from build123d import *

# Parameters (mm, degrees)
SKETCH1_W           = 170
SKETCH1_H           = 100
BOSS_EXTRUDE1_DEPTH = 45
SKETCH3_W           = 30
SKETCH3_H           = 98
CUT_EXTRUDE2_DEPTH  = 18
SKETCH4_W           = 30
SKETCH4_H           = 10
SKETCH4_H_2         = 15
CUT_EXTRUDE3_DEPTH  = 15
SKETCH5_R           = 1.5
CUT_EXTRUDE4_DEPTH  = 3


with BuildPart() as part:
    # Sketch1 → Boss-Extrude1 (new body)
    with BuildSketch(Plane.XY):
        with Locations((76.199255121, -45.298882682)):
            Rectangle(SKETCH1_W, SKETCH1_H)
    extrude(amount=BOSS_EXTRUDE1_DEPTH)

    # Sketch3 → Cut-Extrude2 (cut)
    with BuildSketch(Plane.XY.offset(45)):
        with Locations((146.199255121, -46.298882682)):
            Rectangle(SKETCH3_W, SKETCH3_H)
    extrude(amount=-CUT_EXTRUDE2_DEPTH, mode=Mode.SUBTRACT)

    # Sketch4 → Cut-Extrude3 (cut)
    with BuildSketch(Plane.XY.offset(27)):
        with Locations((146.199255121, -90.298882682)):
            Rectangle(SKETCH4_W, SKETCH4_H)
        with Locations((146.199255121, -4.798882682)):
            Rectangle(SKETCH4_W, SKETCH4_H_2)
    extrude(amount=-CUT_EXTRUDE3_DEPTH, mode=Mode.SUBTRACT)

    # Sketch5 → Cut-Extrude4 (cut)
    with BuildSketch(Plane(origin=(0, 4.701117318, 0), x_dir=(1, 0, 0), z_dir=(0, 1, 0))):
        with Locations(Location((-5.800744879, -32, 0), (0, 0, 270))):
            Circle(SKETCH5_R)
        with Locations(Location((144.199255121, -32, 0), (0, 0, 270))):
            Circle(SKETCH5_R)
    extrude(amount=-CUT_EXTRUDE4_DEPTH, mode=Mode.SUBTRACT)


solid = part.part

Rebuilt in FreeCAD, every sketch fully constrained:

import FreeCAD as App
import Part
import Sketcher
Q = App.Units.Quantity

doc = App.newDocument("Part")
body = doc.addObject("PartDesign::Body", "Body")

# Sketch on XY plane
sketch1 = body.newObject("Sketcher::SketchObject", "Sketch")
sketch1.AttachmentSupport = (doc.getObject("XY_Plane"), [""])
sketch1.MapMode = "FlatFace"
sketch1.addGeometry([
    Part.LineSegment(App.Vector(-8.800745, 4.701117, 0), App.Vector(-8.800745, -95.298883, 0)),
    Part.LineSegment(App.Vector(-8.800745, -95.298883, 0), App.Vector(161.199255, -95.298883, 0)),
    Part.LineSegment(App.Vector(161.199255, -95.298883, 0), App.Vector(161.199255, 4.701117, 0)),
    Part.LineSegment(App.Vector(161.199255, 4.701117, 0), App.Vector(-8.800745, 4.701117, 0)),
], False)
sketch1.addConstraint([
    Sketcher.Constraint("Coincident", 0, 2, 1, 1),
    Sketcher.Constraint("Coincident", 1, 2, 2, 1),
    Sketcher.Constraint("Coincident", 2, 2, 3, 1),
    Sketcher.Constraint("Coincident", 3, 2, 0, 1),
    Sketcher.Constraint("Vertical", 0),
    Sketcher.Constraint("Horizontal", 1),
    Sketcher.Constraint("Vertical", 2),
    Sketcher.Constraint("Horizontal", 3),
    Sketcher.Constraint("DistanceX", 1, 1, 1, 2, Q("170 mm")),
    Sketcher.Constraint("DistanceY", 0, 2, 0, 1, Q("100 mm")),
    Sketcher.Constraint("DistanceX", 0, 2, -1, 1, Q("8.800745 mm")),
    Sketcher.Constraint("DistanceY", 0, 2, -1, 1, Q("95.298883 mm")),
])
pad1 = body.newObject("PartDesign::Pad", "Pad")
pad1.Profile = sketch1
pad1.Length = 45

# Sketch on XY plane
sketch2 = body.newObject("Sketcher::SketchObject", "Sketch001")
sketch2.AttachmentSupport = (doc.getObject("XY_Plane"), [""])
sketch2.MapMode = "FlatFace"
sketch2.AttachmentOffset = App.Placement(App.Vector(0, 0, 45), App.Rotation())
sketch2.addGeometry([
    Part.LineSegment(App.Vector(131.199255, 2.701117, 0), App.Vector(131.199255, -95.298883, 0)),
    Part.LineSegment(App.Vector(131.199255, -95.298883, 0), App.Vector(161.199255, -95.298883, 0)),
    Part.LineSegment(App.Vector(161.199255, -95.298883, 0), App.Vector(161.199255, 2.701117, 0)),
    Part.LineSegment(App.Vector(161.199255, 2.701117, 0), App.Vector(131.199255, 2.701117, 0)),
], False)
sketch2.addConstraint([
    Sketcher.Constraint("Coincident", 0, 2, 1, 1),
    Sketcher.Constraint("Coincident", 1, 2, 2, 1),
    Sketcher.Constraint("Coincident", 2, 2, 3, 1),
    Sketcher.Constraint("Coincident", 3, 2, 0, 1),
    Sketcher.Constraint("Vertical", 0),
    Sketcher.Constraint("Horizontal", 1),
    Sketcher.Constraint("Vertical", 2),
    Sketcher.Constraint("Horizontal", 3),
    Sketcher.Constraint("DistanceX", 1, 1, 1, 2, Q("30 mm")),
    Sketcher.Constraint("DistanceY", 0, 2, 0, 1, Q("98 mm")),
    Sketcher.Constraint("DistanceX", -1, 1, 0, 2, Q("131.199255 mm")),
    Sketcher.Constraint("DistanceY", 0, 2, -1, 1, Q("95.298883 mm")),
])
pocket1 = body.newObject("PartDesign::Pocket", "Pocket")
pocket1.Profile = sketch2
pocket1.Length = 18

# Sketch on XY plane
sketch3 = body.newObject("Sketcher::SketchObject", "Sketch002")
sketch3.AttachmentSupport = (doc.getObject("XY_Plane"), [""])
sketch3.MapMode = "FlatFace"
sketch3.AttachmentOffset = App.Placement(App.Vector(0, 0, 27), App.Rotation())
sketch3.addGeometry([
    Part.LineSegment(App.Vector(131.199255, -85.298883, 0), App.Vector(131.199255, -95.298883, 0)),  # 0
    Part.LineSegment(App.Vector(131.199255, -95.298883, 0), App.Vector(161.199255, -95.298883, 0)),  # 1
    Part.LineSegment(App.Vector(161.199255, -95.298883, 0), App.Vector(161.199255, -85.298883, 0)),  # 2
    Part.LineSegment(App.Vector(161.199255, -85.298883, 0), App.Vector(131.199255, -85.298883, 0)),  # 3
    Part.LineSegment(App.Vector(131.199255, 2.701117, 0), App.Vector(131.199255, -12.298883, 0)),  # 4
    Part.LineSegment(App.Vector(131.199255, -12.298883, 0), App.Vector(161.199255, -12.298883, 0)),  # 5
    Part.LineSegment(App.Vector(161.199255, -12.298883, 0), App.Vector(161.199255, 2.701117, 0)),  # 6
    Part.LineSegment(App.Vector(161.199255, 2.701117, 0), App.Vector(131.199255, 2.701117, 0)),  # 7
], False)
sketch3.addConstraint([
    Sketcher.Constraint("Coincident", 0, 2, 1, 1),
    Sketcher.Constraint("Coincident", 1, 2, 2, 1),
    Sketcher.Constraint("Coincident", 2, 2, 3, 1),
    Sketcher.Constraint("Coincident", 3, 2, 0, 1),
    Sketcher.Constraint("Coincident", 4, 2, 5, 1),
    Sketcher.Constraint("Coincident", 5, 2, 6, 1),
    Sketcher.Constraint("Coincident", 6, 2, 7, 1),
    Sketcher.Constraint("Coincident", 7, 2, 4, 1),
    Sketcher.Constraint("Vertical", 0),
    Sketcher.Constraint("Horizontal", 1),
    Sketcher.Constraint("Vertical", 2),
    Sketcher.Constraint("Horizontal", 3),
    Sketcher.Constraint("Vertical", 4),
    Sketcher.Constraint("Horizontal", 5),
    Sketcher.Constraint("Vertical", 6),
    Sketcher.Constraint("Horizontal", 7),
    Sketcher.Constraint("Vertical", 3, 2, 4, 2),
    Sketcher.Constraint("Vertical", 2, 2, 5, 2),
    Sketcher.Constraint("DistanceX", 1, 1, 1, 2, Q("30 mm")),
    Sketcher.Constraint("DistanceY", 0, 2, 0, 1, Q("10 mm")),
    Sketcher.Constraint("DistanceY", 4, 2, 4, 1, Q("15 mm")),
    Sketcher.Constraint("DistanceY", 3, 2, 4, 2, Q("73 mm")),
    Sketcher.Constraint("DistanceX", -1, 1, 0, 2, Q("131.199255 mm")),
    Sketcher.Constraint("DistanceY", 0, 2, -1, 1, Q("95.298883 mm")),
])
pocket2 = body.newObject("PartDesign::Pocket", "Pocket001")
pocket2.Profile = sketch3
pocket2.Length = 15

# Sketch on XZ plane
sketch4 = body.newObject("Sketcher::SketchObject", "Sketch003")
sketch4.AttachmentSupport = (doc.getObject("XZ_Plane"), [""])
sketch4.MapMode = "FlatFace"
sketch4.AttachmentOffset = App.Placement(App.Vector(0, 0, -4.701117), App.Rotation())
sketch4.addGeometry([
    Part.Circle(App.Vector(-5.800745, 32, 0), App.Vector(0, 0, 1), 1.5),
    Part.Circle(App.Vector(144.199255, 32, 0), App.Vector(0, 0, 1), 1.5),
], False)
sketch4.addConstraint([
    Sketcher.Constraint("Equal", 0, 1),
    Sketcher.Constraint("Horizontal", 0, 3, 1, 3),
    Sketcher.Constraint("Diameter", 0, Q("3 mm")),
    Sketcher.Constraint("DistanceY", -1, 1, 0, 3, Q("32 mm")),
    Sketcher.Constraint("DistanceX", 0, 3, 1, 3, Q("150 mm")),
    Sketcher.Constraint("DistanceX", 0, 3, -1, 1, Q("5.800745 mm")),
])
pocket3 = body.newObject("PartDesign::Pocket", "Pocket002")
pocket3.Profile = sketch4
pocket3.Length = 3
pocket3.Reversed = True

doc.recompute()
